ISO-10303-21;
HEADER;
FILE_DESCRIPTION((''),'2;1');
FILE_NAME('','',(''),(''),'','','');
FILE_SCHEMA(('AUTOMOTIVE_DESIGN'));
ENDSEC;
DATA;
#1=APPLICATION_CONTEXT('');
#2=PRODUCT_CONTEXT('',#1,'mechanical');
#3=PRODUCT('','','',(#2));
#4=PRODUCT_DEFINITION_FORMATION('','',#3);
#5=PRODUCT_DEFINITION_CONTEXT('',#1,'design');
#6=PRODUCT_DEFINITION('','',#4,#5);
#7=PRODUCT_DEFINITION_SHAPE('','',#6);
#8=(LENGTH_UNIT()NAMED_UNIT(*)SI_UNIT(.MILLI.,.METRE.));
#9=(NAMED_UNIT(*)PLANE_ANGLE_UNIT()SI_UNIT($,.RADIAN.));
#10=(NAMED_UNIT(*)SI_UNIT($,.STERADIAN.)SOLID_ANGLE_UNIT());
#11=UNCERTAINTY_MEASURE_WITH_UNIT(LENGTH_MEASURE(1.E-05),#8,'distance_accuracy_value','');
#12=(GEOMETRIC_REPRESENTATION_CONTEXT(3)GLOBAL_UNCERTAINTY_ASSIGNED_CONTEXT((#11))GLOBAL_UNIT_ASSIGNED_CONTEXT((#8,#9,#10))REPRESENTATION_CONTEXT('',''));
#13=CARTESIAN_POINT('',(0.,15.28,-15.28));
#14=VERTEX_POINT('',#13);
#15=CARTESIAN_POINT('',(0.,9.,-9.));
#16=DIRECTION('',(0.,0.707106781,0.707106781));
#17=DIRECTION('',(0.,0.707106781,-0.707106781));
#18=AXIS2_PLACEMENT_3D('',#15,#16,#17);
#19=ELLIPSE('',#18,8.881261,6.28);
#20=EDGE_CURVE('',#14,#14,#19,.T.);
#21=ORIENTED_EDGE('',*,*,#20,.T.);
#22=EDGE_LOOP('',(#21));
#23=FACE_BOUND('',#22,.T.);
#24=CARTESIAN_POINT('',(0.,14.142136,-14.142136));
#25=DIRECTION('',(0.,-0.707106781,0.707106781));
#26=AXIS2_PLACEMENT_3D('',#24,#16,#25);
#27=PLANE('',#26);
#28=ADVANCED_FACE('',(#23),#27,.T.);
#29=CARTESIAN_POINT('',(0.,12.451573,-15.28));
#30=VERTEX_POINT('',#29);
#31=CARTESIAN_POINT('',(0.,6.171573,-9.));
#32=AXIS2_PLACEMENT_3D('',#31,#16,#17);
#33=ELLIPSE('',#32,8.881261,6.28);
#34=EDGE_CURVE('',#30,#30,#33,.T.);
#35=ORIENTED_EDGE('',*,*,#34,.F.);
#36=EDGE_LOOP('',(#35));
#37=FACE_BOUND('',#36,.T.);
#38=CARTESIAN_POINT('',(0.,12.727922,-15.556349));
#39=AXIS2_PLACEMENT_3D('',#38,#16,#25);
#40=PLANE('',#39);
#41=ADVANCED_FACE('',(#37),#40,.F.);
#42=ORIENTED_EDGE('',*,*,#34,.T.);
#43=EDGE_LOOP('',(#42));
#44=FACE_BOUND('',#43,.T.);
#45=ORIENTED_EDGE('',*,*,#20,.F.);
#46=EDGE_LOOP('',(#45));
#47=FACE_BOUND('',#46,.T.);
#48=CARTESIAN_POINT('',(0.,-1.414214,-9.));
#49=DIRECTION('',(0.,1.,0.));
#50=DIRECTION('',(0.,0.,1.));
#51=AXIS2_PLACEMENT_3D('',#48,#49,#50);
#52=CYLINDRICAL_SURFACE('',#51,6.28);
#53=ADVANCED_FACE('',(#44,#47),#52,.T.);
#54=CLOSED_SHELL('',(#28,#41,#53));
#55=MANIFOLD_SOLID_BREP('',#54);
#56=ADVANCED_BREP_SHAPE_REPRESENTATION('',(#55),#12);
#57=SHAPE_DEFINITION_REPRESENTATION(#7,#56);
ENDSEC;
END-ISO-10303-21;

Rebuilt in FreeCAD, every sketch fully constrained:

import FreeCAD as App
import Part
import Sketcher
from FreeCAD import Vector

doc = App.newDocument("Part")
body = doc.addObject("PartDesign::Body", "Body")

sketch1 = doc.addObject("Sketcher::SketchObject", "Sketch")
body.addObject(sketch1)
sketch1.Placement = App.Placement(Vector(0, 0, 0), App.Rotation(Vector(1, 0, 0), Vector(0, 0.707106781, -0.707106781), Vector(0, 0.707106781, 0.707106781), "ZXY"))
sketch1.addGeometry(Part.Circle(Vector(0, 20, 0), Vector(0, 0, 1), 20), False)
sketch1.addConstraint([
    Sketcher.Constraint("PointOnObject", 0, 3, -2),
    Sketcher.Constraint("Diameter", 0, 40.0),
    Sketcher.Constraint("DistanceY", -1, 1, 0, 3, 20.0),
])
pad1 = doc.addObject("PartDesign::Pad", "Pad")
body.addObject(pad1)
pad1.Profile = sketch1
pad1.Length = 2
pad1.Reversed = True

sketch2 = doc.addObject("Sketcher::SketchObject", "Sketch001")
body.addObject(sketch2)
sketch2.AttachmentSupport = (doc.XZ_Plane, [""])
sketch2.MapMode = "FlatFace"
sketch2.addGeometry([
    Part.Circle(Vector(0, -9, 0), Vector(0, 0, 1), 25.059608),
    Part.Circle(Vector(0, -9, 0), Vector(0, 0, 1), 6.28),
], False)
sketch2.addConstraint([
    Sketcher.Constraint("Coincident", 1, 3, 0, 3),
    Sketcher.Constraint("PointOnObject", 0, 3, -2),
    Sketcher.Constraint("Diameter", 1, 12.56),
    Sketcher.Constraint("DistanceY", 0, 3, -1, 1, 9.0),
    Sketcher.Constraint("Diameter", 0, 50.119217),
])
pocket1 = doc.addObject("PartDesign::Pocket", "Pocket")
body.addObject(pocket1)
pocket1.Profile = sketch2
pocket1.Type = "ThroughAll"
pocket1.Midplane = True
body2 = doc.addObject("PartDesign::Body", "Body001")

sketch3 = doc.addObject("Sketcher::SketchObject", "Sketch002")
body2.addObject(sketch3)
sketch3.AttachmentSupport = (doc.getObject("XZ_Plane001"), [""])
sketch3.MapMode = "FlatFace"
sketch3.AttachmentOffset = App.Placement(Vector(0, 0, 3.25), App.Rotation())
sketch3.addGeometry([
    Part.Circle(Vector(0, -7.4, 0), Vector(0, 0, 1), 7.4),
    Part.Circle(Vector(0, -7.4, 0), Vector(0, 0, 1), 5.9),
], False)
sketch3.addConstraint([
    Sketcher.Constraint("Coincident", 1, 3, 0, 3),
    Sketcher.Constraint("PointOnObject", 0, 3, -2),
    Sketcher.Constraint("Diameter", 0, 14.8),
    Sketcher.Constraint("Diameter", 1, 11.8),
    Sketcher.Constraint("DistanceY", 0, 3, -1, 1, 7.4),
])
pad2 = doc.addObject("PartDesign::Pad", "Pad001")
body2.addObject(pad2)
pad2.Profile = sketch3
pad2.Length = 1
pad2.Reversed = True

sketch4 = doc.addObject("Sketcher::SketchObject", "Sketch003")
body2.addObject(sketch4)
sketch4.AttachmentSupport = (doc.getObject("XZ_Plane001"), [""])
sketch4.MapMode = "FlatFace"
sketch4.AttachmentOffset = App.Placement(Vector(0, 0, 3.25), App.Rotation())
sketch4.addGeometry(Part.Circle(Vector(0.290894, -7.517427, 0), Vector(0, 0, 1), 13.022062), False)
sketch4.addConstraint([
    Sketcher.Constraint("Diameter", 0, 26.044123),
    Sketcher.Constraint("DistanceX", -1, 1, 0, 3, 0.290894),
    Sketcher.Constraint("DistanceY", 0, 3, -1, 1, 7.517427),
])
pocket2 = doc.addObject("PartDesign::Pocket", "Pocket001")
body2.addObject(pocket2)
pocket2.Profile = sketch4
pocket2.Length = 1

doc.recompute()
